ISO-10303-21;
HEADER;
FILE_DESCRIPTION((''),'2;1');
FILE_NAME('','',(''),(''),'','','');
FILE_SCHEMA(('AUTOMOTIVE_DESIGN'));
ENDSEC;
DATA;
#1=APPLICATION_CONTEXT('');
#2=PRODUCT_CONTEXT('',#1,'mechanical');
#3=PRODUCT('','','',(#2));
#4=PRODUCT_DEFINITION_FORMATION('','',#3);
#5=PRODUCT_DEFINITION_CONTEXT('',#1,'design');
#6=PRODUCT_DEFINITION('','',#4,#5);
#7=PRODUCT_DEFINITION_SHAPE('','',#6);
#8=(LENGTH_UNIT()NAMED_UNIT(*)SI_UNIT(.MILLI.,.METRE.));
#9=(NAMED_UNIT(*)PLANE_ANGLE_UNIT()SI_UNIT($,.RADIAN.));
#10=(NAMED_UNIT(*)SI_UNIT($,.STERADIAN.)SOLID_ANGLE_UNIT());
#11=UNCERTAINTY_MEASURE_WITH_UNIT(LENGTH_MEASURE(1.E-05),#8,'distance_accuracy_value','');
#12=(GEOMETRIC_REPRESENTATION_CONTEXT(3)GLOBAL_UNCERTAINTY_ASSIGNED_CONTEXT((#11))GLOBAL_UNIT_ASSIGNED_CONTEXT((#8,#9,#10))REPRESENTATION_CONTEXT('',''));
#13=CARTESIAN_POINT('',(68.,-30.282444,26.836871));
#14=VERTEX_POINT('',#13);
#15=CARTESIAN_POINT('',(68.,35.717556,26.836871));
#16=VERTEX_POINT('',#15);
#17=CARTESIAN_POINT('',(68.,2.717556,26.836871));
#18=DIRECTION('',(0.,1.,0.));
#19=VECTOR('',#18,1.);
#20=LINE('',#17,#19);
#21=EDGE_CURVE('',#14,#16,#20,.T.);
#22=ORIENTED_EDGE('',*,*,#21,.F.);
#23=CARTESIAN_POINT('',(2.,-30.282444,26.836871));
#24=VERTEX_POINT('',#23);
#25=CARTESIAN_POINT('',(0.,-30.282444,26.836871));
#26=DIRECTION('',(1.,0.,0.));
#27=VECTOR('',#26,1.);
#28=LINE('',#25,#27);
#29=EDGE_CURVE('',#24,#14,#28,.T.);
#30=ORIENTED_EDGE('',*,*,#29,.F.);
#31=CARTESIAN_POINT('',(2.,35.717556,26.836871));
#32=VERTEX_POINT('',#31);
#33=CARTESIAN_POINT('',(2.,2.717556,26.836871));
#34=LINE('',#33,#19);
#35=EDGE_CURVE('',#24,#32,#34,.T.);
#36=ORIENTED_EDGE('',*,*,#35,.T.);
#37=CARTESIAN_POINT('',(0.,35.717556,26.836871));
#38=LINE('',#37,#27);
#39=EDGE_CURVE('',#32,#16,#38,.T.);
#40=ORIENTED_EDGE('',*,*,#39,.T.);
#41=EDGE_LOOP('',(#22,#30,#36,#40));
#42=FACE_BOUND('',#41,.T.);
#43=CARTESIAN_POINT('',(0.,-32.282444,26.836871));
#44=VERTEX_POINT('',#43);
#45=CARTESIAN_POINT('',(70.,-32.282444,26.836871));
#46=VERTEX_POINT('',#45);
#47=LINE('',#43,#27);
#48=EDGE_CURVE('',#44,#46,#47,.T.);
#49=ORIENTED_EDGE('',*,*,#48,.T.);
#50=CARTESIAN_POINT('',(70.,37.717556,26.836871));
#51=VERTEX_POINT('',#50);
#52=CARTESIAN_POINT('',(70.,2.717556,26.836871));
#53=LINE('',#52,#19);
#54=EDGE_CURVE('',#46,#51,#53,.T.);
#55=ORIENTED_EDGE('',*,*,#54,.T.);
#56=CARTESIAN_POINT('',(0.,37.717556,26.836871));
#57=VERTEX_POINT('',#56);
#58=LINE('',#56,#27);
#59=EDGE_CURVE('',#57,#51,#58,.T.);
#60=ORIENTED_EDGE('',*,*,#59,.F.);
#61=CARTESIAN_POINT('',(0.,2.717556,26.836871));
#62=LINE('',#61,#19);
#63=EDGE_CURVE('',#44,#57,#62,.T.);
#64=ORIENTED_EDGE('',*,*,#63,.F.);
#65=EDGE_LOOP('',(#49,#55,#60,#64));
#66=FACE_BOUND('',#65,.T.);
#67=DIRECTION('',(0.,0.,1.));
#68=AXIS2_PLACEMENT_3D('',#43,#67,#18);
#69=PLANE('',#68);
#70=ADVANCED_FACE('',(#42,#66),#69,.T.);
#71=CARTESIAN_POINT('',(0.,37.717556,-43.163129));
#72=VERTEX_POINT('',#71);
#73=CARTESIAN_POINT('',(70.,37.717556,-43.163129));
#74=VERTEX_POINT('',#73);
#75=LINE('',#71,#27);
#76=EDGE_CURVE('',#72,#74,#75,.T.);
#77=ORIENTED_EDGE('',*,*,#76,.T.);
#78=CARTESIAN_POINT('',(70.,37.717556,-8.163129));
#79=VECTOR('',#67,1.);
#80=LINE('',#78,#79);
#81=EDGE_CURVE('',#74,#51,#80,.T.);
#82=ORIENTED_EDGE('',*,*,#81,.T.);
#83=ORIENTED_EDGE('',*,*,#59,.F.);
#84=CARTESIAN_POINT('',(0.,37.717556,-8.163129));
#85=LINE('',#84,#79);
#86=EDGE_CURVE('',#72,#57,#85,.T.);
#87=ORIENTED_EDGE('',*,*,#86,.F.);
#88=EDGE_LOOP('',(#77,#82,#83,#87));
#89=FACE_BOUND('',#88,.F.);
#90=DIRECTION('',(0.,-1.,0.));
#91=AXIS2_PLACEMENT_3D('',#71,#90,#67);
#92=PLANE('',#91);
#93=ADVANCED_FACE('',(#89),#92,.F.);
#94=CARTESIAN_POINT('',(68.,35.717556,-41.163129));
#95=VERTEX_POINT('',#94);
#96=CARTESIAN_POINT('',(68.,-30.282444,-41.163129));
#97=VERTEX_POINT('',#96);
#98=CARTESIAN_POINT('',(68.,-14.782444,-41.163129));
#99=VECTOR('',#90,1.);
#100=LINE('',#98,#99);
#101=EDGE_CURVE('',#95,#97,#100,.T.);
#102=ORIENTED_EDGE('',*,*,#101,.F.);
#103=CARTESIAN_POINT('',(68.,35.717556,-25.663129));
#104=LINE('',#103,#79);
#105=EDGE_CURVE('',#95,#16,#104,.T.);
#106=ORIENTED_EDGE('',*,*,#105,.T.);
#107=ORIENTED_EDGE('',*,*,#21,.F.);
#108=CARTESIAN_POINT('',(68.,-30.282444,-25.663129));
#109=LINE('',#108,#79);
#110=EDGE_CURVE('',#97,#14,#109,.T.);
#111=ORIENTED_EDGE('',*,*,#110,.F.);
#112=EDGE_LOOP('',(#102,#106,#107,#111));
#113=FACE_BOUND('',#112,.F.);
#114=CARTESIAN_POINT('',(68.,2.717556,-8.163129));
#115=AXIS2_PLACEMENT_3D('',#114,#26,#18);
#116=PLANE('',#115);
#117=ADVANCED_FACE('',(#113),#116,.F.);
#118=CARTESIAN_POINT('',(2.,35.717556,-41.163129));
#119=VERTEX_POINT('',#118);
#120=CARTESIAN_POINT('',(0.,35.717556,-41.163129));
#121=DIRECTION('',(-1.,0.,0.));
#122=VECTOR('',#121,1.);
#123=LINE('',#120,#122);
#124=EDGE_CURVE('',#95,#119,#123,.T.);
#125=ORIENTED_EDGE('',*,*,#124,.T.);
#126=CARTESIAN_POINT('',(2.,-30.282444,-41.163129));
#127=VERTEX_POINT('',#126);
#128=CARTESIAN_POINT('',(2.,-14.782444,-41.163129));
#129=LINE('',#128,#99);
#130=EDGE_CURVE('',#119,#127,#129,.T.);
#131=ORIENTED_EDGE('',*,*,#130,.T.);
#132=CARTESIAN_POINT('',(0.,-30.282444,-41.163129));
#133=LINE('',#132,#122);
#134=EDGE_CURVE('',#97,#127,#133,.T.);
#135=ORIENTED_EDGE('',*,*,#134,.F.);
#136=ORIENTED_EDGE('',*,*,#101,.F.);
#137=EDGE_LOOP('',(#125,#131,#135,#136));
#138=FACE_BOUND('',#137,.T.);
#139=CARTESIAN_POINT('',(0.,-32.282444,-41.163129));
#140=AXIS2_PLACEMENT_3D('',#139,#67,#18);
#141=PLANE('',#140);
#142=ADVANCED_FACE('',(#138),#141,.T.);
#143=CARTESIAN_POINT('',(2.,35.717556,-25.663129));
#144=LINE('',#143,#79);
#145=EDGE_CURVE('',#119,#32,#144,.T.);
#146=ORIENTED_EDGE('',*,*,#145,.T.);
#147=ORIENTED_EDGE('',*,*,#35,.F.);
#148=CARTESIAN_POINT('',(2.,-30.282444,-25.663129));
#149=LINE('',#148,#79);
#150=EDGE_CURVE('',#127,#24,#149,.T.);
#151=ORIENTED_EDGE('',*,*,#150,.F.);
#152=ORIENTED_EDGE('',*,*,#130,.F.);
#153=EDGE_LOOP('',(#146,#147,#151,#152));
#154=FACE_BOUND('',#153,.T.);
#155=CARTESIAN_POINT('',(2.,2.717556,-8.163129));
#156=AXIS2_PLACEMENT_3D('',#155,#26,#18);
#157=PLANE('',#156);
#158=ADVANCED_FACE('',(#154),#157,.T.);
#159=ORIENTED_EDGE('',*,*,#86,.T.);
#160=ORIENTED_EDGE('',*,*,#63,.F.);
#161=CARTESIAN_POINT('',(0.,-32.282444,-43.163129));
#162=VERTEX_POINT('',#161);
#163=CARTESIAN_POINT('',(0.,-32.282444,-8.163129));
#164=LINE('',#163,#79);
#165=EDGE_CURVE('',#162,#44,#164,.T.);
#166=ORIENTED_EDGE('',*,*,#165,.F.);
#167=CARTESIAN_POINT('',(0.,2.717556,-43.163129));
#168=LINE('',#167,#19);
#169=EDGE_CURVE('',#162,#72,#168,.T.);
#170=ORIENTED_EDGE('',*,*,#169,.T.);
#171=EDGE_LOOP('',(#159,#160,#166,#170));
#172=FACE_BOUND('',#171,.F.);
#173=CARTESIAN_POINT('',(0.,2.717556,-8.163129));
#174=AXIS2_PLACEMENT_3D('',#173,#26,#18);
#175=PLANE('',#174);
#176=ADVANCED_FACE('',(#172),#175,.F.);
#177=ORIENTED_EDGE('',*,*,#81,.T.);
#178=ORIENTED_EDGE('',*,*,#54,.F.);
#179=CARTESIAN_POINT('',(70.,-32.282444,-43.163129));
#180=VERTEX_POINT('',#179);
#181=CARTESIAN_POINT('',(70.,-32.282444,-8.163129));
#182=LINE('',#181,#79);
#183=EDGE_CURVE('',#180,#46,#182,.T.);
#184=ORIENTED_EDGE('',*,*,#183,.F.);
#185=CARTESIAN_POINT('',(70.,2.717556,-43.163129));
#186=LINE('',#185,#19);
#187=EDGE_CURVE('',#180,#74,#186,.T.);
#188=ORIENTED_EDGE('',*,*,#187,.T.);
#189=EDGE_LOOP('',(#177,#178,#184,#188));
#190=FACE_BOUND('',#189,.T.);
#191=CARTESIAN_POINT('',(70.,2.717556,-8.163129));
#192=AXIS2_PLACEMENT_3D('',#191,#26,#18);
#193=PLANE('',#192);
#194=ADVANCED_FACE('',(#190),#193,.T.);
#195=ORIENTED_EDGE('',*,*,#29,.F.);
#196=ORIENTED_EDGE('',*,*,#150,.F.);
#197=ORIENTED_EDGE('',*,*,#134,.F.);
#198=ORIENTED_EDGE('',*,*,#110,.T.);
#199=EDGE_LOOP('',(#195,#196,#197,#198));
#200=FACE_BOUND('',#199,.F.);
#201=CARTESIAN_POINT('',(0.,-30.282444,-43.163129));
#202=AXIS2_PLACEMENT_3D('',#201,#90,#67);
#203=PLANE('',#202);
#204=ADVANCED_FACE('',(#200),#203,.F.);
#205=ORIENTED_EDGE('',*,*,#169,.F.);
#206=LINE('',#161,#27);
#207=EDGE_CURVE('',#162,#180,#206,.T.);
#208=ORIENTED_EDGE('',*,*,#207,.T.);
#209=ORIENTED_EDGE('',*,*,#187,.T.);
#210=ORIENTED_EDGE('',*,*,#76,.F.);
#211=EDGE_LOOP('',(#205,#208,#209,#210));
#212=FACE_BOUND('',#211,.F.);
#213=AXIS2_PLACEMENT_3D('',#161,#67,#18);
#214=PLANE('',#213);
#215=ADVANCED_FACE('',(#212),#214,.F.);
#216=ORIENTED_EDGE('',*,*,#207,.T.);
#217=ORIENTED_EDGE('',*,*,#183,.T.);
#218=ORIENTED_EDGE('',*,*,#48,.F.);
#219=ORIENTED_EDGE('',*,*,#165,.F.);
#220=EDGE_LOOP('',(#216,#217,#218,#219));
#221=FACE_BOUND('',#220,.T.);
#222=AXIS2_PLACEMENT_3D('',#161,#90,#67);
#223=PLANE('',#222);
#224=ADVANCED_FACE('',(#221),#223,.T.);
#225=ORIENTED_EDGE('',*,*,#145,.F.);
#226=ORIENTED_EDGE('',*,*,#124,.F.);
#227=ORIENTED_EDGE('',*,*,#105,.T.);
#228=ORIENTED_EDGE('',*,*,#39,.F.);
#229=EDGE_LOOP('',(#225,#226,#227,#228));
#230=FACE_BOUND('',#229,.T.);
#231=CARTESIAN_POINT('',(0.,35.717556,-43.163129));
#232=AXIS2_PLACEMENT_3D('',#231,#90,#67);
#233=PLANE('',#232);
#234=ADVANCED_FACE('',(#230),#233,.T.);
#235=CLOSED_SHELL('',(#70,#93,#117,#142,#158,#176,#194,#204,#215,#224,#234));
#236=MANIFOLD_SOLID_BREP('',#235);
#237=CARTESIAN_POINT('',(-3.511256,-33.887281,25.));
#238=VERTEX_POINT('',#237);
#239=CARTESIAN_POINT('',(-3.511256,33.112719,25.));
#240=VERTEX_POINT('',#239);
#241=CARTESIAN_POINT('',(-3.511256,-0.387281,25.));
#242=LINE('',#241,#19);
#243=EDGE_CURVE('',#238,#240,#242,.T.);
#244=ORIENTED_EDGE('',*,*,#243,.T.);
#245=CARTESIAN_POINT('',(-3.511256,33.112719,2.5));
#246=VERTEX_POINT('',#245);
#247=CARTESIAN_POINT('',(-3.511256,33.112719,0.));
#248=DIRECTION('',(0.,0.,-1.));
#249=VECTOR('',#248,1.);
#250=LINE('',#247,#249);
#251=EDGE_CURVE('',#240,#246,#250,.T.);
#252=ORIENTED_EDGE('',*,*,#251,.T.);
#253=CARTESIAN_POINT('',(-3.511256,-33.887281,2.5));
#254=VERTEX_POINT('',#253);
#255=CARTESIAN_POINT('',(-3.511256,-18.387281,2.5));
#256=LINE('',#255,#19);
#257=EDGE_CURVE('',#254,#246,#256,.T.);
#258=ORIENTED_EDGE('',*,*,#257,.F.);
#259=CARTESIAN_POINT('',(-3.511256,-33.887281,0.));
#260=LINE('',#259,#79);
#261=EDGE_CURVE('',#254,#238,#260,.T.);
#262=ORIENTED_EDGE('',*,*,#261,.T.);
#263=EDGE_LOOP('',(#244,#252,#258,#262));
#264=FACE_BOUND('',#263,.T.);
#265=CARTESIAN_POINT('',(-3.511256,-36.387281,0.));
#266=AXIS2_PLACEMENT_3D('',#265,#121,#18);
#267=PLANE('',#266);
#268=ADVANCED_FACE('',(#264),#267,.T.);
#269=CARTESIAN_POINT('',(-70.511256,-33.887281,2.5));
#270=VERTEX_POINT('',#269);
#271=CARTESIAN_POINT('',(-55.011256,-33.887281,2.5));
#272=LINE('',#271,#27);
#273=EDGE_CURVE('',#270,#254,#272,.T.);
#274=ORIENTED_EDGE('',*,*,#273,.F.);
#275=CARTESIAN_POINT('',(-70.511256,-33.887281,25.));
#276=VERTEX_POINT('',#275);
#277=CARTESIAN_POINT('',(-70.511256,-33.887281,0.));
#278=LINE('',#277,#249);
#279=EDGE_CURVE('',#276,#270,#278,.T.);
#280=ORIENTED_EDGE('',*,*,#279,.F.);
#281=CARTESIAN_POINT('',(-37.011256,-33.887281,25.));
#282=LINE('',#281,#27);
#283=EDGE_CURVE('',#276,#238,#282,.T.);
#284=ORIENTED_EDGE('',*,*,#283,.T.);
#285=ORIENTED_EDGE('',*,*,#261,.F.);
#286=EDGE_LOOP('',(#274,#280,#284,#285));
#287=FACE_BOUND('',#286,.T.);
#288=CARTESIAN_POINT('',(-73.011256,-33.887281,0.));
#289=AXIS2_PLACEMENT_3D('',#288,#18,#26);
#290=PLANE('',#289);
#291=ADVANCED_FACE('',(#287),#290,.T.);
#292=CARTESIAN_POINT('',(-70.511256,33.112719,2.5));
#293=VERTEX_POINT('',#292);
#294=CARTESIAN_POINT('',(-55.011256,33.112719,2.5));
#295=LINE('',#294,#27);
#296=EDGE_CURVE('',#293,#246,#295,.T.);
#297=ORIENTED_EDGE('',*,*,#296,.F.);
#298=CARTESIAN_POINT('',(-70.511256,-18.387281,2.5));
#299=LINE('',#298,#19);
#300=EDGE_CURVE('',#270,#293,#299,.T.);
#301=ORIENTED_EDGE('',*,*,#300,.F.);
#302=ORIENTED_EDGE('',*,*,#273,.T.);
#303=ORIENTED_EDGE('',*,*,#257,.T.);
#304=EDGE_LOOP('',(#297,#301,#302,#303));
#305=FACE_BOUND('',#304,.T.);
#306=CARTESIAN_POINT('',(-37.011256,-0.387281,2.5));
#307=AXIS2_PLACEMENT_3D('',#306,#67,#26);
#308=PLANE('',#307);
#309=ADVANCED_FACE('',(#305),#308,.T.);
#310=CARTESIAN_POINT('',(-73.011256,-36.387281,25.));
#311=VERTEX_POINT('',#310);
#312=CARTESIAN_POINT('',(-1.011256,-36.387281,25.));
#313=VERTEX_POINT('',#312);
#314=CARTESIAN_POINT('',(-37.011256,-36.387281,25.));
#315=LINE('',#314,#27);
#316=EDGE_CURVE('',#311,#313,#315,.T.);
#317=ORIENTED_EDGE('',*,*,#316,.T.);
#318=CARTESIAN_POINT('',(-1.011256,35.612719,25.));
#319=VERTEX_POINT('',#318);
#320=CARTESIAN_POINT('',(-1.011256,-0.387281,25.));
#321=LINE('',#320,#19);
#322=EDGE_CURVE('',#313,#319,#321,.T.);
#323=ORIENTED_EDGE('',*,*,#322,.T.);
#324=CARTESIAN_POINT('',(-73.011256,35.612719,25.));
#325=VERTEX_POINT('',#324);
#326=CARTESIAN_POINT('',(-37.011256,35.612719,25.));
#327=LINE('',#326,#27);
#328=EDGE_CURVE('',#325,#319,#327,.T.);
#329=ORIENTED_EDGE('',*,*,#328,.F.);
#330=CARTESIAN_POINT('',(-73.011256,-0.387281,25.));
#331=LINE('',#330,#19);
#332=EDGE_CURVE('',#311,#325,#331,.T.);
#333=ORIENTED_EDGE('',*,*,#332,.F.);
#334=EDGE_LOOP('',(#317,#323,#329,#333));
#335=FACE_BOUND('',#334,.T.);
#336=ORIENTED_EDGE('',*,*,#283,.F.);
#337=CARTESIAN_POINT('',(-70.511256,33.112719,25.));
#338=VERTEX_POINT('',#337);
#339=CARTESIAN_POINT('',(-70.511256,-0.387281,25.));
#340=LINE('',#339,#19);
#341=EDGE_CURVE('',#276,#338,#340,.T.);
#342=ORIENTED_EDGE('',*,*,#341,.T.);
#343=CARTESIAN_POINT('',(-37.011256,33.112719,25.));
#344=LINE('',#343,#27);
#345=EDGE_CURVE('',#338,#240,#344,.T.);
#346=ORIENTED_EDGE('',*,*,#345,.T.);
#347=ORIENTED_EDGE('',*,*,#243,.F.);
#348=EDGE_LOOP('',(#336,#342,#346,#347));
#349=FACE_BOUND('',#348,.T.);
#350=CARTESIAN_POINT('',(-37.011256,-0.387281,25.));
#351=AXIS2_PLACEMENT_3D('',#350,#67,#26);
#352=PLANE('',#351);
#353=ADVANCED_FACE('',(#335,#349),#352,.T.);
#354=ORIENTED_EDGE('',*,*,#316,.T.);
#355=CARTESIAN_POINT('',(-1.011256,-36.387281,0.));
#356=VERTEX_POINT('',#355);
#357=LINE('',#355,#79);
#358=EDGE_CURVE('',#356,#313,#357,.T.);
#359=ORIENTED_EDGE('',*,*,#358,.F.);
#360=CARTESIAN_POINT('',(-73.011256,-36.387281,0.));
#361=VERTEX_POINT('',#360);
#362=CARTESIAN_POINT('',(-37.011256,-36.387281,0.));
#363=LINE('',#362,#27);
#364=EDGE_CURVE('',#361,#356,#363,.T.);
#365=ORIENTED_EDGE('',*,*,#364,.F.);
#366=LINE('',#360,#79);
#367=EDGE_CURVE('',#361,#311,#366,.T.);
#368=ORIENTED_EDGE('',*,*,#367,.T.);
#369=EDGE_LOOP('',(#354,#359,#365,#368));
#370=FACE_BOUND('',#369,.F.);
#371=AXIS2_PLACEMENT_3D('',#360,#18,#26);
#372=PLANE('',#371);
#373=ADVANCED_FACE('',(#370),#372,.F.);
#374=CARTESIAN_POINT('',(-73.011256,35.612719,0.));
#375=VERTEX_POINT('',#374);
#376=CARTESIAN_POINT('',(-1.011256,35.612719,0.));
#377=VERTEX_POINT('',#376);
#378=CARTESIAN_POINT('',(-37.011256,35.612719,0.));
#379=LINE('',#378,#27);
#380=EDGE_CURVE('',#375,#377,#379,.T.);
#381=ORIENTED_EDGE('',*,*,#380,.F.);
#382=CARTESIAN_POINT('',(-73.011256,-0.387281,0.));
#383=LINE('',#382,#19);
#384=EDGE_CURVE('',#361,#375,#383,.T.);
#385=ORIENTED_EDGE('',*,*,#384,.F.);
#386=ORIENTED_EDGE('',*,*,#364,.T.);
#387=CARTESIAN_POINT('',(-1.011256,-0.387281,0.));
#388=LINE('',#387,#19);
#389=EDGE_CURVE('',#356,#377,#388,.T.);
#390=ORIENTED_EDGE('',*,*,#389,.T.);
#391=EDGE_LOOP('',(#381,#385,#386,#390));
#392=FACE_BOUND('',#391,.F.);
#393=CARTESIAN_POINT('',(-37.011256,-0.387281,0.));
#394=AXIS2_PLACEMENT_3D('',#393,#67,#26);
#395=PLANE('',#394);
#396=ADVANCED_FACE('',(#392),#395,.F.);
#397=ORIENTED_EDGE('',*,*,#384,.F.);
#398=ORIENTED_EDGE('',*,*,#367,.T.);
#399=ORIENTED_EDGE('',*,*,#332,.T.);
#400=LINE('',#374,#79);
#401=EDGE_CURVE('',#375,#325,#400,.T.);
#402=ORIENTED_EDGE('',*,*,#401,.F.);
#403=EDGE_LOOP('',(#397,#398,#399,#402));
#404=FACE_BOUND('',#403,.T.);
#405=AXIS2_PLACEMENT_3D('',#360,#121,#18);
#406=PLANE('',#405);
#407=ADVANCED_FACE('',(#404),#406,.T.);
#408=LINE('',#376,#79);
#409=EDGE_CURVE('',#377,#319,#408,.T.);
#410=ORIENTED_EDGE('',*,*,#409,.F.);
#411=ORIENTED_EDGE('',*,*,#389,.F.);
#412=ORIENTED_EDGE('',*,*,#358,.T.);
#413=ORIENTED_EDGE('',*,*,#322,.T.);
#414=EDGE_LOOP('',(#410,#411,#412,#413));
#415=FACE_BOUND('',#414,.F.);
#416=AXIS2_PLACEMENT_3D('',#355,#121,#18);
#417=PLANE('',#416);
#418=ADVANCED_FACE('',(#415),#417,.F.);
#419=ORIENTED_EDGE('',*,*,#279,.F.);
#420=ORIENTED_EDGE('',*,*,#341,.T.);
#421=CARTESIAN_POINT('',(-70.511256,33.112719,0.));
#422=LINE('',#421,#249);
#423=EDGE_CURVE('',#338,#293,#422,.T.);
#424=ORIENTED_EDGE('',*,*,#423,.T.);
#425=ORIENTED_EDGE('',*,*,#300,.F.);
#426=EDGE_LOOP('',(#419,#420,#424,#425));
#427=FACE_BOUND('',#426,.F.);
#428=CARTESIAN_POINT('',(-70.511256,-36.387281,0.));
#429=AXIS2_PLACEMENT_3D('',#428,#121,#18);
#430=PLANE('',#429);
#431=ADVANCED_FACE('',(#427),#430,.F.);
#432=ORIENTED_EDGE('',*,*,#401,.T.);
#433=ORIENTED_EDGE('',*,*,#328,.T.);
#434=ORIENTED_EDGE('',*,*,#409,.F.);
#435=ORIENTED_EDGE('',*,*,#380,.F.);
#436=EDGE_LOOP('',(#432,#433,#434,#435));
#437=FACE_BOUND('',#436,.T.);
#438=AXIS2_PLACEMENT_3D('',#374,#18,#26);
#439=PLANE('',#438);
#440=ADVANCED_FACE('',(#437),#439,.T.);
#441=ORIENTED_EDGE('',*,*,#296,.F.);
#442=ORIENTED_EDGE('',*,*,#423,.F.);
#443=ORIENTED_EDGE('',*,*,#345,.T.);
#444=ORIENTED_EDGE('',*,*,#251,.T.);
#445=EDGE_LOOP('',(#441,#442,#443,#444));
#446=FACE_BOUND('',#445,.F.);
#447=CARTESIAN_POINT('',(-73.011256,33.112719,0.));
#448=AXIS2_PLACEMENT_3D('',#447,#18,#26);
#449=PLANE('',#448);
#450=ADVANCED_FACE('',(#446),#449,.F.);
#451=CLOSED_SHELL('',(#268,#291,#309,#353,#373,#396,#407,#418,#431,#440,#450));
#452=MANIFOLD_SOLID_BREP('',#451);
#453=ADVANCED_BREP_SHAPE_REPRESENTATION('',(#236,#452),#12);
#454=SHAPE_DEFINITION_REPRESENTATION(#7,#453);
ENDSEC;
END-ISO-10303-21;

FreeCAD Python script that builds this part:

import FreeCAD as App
import Part
import Sketcher

V = App.Vector


def faces_at(feature, points):
    """Names of the faces that lie closest to the given points."""
    faces = feature.Shape.Faces
    near = lambda p: min(range(len(faces)), key=lambda i: faces[i].distToShape(Part.Vertex(*p))[0])
    return sorted({f"Face{near(p) + 1}" for p in points})


def add_polygon(sketch, points):
    """Adds a closed chain of lines whose ends are joined by coincident constraints."""
    first, n = sketch.GeometryCount, len(points)
    for a, b in zip(points, points[1:] + points[:1]):
        sketch.addGeometry(Part.LineSegment(App.Vector(*a, 0), App.Vector(*b, 0)), False)
    for i in range(n):
        sketch.addConstraint(Sketcher.Constraint("Coincident", first + i, 2, first + (i + 1) % n, 1))

doc = App.newDocument("Part")
body = doc.addObject("PartDesign::Body", "Body")

sketch1 = body.newObject("Sketcher::SketchObject", "Sketch")
sketch1.AttachmentSupport = (doc.getObject("YZ_Plane"), [""])
sketch1.MapMode = "FlatFace"
add_polygon(sketch1, [(-32.282444, 26.836871), (-32.282444, -43.163129), (37.717556, -43.163129), (37.717556, 26.836871)])
sketch1.addConstraint([
    Sketcher.Constraint("Vertical", 0),
    Sketcher.Constraint("Horizontal", 1),
    Sketcher.Constraint("Vertical", 2),
    Sketcher.Constraint("Horizontal", 3),
    Sketcher.Constraint("Equal", 3, 0),
    Sketcher.Constraint("DistanceX", 1, 1, 1, 2, 70.0),
    Sketcher.Constraint("DistanceY", 0, 2, -1, 1, 43.163129),
    Sketcher.Constraint("DistanceX", 0, 2, -1, 1, 32.282444),
])
pad1 = body.newObject("PartDesign::Pad", "Pad")
pad1.Profile = sketch1
pad1.Length = 70
doc.recompute()

thickness = body.newObject("PartDesign::Thickness", "Thickness")
thickness.Base = (pad1, faces_at(pad1, [(35, 2.718, 26.837)]))
thickness.Value = 2
thickness.Reversed = True
thickness.Join = "Arc"
body2 = doc.addObject("PartDesign::Body", "Body001")

sketch2 = body2.newObject("Sketcher::SketchObject", "Sketch001")
sketch2.AttachmentSupport = (doc.getObject("XY_Plane001"), [""])
sketch2.MapMode = "FlatFace"
add_polygon(sketch2, [(-73.011256, 35.612719), (-73.011256, -36.387281), (-1.011256, -36.387281), (-1.011256, 35.612719)])
sketch2.addConstraint([
    Sketcher.Constraint("Vertical", 0),
    Sketcher.Constraint("Horizontal", 1),
    Sketcher.Constraint("Vertical", 2),
    Sketcher.Constraint("Horizontal", 3),
    Sketcher.Constraint("Equal", 3, 0),
    Sketcher.Constraint("DistanceX", 1, 1, 1, 2, 72.0),
    Sketcher.Constraint("DistanceY", 0, 2, -1, 1, 36.387281),
    Sketcher.Constraint("DistanceX", 0, 2, -1, 1, 73.011256),
])
pad2 = body2.newObject("PartDesign::Pad", "Pad001")
pad2.Profile = sketch2
pad2.Length = 25
doc.recompute()

thickness2 = body2.newObject("PartDesign::Thickness", "Thickness001")
thickness2.Base = (pad2, faces_at(pad2, [(-37.011, -0.387, 25)]))
thickness2.Value = 2.5
thickness2.Reversed = True
thickness2.Join = "Arc"

doc.recompute()
